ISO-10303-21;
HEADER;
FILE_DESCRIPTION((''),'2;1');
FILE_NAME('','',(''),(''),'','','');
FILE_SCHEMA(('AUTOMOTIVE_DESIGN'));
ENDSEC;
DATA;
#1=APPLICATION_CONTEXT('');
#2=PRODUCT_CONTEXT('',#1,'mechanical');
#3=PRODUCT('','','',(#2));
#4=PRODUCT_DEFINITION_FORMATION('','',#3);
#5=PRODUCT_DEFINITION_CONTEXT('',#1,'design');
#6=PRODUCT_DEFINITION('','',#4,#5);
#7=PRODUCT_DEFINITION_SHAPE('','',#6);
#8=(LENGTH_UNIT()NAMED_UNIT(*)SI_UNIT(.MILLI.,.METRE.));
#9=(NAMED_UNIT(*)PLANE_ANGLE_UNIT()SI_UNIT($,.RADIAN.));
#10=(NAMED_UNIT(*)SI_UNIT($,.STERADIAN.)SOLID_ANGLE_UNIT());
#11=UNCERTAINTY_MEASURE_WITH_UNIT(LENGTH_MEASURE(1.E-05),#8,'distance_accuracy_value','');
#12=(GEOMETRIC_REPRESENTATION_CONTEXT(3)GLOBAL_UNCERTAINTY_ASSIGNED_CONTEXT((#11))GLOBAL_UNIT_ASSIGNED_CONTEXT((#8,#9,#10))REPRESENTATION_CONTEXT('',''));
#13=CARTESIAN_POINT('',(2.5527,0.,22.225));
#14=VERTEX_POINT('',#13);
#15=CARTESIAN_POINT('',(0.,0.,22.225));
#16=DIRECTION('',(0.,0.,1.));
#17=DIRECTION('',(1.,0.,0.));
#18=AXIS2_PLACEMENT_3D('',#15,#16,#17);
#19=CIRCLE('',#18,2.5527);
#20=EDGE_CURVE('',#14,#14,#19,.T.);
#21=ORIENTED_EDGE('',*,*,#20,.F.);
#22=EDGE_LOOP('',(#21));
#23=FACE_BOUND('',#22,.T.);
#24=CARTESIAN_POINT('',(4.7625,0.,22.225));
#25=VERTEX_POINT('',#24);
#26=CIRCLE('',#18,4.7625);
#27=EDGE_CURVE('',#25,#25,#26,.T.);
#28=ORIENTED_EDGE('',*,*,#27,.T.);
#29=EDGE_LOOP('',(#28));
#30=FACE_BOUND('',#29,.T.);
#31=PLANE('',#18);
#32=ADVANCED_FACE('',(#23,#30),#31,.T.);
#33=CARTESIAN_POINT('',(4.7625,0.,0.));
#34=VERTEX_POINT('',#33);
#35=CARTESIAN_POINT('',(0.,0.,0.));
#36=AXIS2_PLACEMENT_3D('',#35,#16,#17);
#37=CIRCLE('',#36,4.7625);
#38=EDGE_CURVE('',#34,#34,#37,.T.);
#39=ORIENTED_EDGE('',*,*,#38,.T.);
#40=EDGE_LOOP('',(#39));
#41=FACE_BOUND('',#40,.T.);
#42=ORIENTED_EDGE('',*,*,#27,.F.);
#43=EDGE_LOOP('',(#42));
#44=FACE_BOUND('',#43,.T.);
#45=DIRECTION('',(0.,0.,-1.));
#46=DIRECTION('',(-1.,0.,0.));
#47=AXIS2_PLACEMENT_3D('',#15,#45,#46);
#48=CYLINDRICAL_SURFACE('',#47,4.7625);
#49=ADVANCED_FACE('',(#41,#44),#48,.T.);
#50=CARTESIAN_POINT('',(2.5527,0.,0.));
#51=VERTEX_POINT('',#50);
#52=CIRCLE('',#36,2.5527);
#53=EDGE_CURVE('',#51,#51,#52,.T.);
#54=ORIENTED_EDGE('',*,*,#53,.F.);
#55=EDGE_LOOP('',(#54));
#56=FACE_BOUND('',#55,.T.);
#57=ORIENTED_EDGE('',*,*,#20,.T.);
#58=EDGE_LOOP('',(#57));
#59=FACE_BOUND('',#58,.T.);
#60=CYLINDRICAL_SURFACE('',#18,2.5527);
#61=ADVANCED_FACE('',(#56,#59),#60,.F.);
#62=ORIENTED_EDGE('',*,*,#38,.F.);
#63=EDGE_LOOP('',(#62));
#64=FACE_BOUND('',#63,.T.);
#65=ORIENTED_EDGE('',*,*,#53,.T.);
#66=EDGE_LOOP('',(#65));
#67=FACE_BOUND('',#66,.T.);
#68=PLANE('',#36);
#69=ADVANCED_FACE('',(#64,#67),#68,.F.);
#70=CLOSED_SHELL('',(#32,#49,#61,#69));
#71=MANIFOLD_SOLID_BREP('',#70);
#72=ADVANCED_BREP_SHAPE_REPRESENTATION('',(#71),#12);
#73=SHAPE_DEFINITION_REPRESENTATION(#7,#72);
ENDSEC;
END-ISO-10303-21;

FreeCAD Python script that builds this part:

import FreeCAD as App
import Part
import Sketcher
from FreeCAD import Vector
Q = App.Units.Quantity

doc = App.newDocument("Part")
body = doc.addObject("PartDesign::Body", "Body")

# Sketch on XY plane
sketch1 = doc.addObject("Sketcher::SketchObject", "Sketch")
body.addObject(sketch1)
sketch1.AttachmentSupport = (doc.XY_Plane, [""])
sketch1.MapMode = "FlatFace"
sketch1.addGeometry(Part.Circle(Vector(0, 0, 0), Vector(0, 0, 1), 4.8), False)
sketch1.addConstraint([
    Sketcher.Constraint("Coincident", 0, 3, -1, 1),
    Sketcher.Constraint("Diameter", 0, Q("0.375 in")),
])
pad1 = doc.addObject("PartDesign::Pad", "Pad")
body.addObject(pad1)
pad1.Profile = sketch1
pad1.Length = Q("0.875 in")

# Sketch on XY plane
sketch2 = doc.addObject("Sketcher::SketchObject", "Sketch001")
body.addObject(sketch2)
sketch2.AttachmentSupport = (doc.XY_Plane, [""])
sketch2.MapMode = "FlatFace"
sketch2.AttachmentOffset = App.Placement(Vector(0, 0, 0.875 * 25.4), App.Rotation())
sketch2.addGeometry(Part.Circle(Vector(0, 0, 0), Vector(0, 0, 1), 2.6), False)
sketch2.addConstraint([
    Sketcher.Constraint("Coincident", 0, 3, -1, 1),
    Sketcher.Constraint("Diameter", 0, Q("0.201 in")),
])
doc.recompute()
hole = doc.addObject("PartDesign::Hole", "Hole")
body.addObject(hole)
hole.Profile = sketch2
hole.ThreadType = "None"
hole.Diameter = Q("0.201 in")
hole.DepthType = "ThroughAll"

doc.recompute()
